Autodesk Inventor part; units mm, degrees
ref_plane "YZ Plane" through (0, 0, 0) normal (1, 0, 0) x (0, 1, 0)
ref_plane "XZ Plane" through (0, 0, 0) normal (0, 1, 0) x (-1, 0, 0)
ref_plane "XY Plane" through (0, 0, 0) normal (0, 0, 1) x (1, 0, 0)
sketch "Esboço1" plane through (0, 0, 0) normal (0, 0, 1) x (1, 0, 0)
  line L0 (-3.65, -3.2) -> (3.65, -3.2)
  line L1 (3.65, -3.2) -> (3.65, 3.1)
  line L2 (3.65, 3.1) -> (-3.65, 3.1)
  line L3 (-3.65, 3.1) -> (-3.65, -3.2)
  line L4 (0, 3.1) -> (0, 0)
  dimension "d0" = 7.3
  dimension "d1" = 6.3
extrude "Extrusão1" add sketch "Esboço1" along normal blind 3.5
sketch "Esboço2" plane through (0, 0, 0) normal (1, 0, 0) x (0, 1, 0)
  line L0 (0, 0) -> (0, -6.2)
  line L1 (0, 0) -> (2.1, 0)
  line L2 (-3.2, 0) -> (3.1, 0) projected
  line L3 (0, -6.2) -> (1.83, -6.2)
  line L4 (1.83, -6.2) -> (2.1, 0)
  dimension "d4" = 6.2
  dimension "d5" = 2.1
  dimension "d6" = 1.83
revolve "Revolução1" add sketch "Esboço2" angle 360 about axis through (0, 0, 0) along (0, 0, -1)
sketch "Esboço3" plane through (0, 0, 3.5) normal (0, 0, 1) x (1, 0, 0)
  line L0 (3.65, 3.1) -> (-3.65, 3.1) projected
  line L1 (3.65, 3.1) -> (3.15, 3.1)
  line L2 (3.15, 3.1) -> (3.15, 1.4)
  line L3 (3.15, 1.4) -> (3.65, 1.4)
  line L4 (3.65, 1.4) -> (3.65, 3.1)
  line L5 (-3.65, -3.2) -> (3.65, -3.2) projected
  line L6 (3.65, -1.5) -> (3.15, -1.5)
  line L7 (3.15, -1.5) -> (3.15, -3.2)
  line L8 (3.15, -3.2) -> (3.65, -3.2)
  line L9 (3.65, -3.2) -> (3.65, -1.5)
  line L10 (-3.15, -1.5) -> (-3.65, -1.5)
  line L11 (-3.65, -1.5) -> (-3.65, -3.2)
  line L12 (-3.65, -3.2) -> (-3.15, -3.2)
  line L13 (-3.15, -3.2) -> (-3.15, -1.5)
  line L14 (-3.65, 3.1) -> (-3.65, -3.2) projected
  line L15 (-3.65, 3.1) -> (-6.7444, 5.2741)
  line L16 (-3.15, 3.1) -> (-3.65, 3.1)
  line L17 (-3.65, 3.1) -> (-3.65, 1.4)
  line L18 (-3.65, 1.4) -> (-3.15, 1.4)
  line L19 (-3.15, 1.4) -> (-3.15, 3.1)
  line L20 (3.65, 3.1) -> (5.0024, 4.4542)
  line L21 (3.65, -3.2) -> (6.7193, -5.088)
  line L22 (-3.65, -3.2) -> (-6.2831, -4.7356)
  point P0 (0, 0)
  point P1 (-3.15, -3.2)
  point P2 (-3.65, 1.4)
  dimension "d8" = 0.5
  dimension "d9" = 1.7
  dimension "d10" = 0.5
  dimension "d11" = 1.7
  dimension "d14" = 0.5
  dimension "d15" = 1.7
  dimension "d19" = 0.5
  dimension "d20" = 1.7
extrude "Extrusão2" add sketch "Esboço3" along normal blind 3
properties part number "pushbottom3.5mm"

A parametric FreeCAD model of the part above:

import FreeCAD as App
import Part
import Sketcher
from FreeCAD import Vector


def add_polygon(sketch, points):
    """Adds a closed chain of lines whose ends are joined by coincident constraints."""
    first, n = sketch.GeometryCount, len(points)
    for a, b in zip(points, points[1:] + points[:1]):
        sketch.addGeometry(Part.LineSegment(App.Vector(*a, 0), App.Vector(*b, 0)), False)
    for i in range(n):
        sketch.addConstraint(Sketcher.Constraint("Coincident", first + i, 2, first + (i + 1) % n, 1))

doc = App.newDocument("Part")
body = doc.addObject("PartDesign::Body", "Body")

# Sketch on XY plane
sketch1 = doc.addObject("Sketcher::SketchObject", "Sketch")
body.addObject(sketch1)
sketch1.AttachmentSupport = (doc.XY_Plane, [""])
sketch1.MapMode = "FlatFace"
add_polygon(sketch1, [(-4, 3), (-4, -3), (4, -3), (4, 3)])  # lines 0-3
sketch1.addConstraint([
    Sketcher.Constraint("Vertical", 0),
    Sketcher.Constraint("Horizontal", 1),
    Sketcher.Constraint("Vertical", 2),
    Sketcher.Constraint("Horizontal", 3),
    Sketcher.Constraint("DistanceX", 1, 1, 1, 2, 7.3),
    Sketcher.Constraint("DistanceY", 0, 2, 0, 1, 6.3),
    Sketcher.Constraint("DistanceY", 0, 2, -1, 1, 3.2),
    Sketcher.Constraint("DistanceX", 0, 2, -1, 1, 3.65),
])
pad1 = doc.addObject("PartDesign::Pad", "Pad")
body.addObject(pad1)
pad1.Profile = sketch1
pad1.Length = 3.5

# Sketch on YZ plane
sketch2 = doc.addObject("Sketcher::SketchObject", "Sketch001")
body.addObject(sketch2)
sketch2.AttachmentSupport = (doc.YZ_Plane, [""])
sketch2.MapMode = "FlatFace"
add_polygon(sketch2, [(2.1, 0), (0, 0), (0, -6.2), (1.8, -6.2)])  # lines 0-3
sketch2.addConstraint([
    Sketcher.Constraint("Horizontal", 0),
    Sketcher.Constraint("Vertical", 1),
    Sketcher.Constraint("Horizontal", 2),
    Sketcher.Constraint("Coincident", 0, 2, -1, 1),
    Sketcher.Constraint("DistanceX", 0, 2, 0, 1, 2.1),
    Sketcher.Constraint("DistanceY", 1, 2, 1, 1, 6.2),
    Sketcher.Constraint("DistanceX", 2, 1, 2, 2, 1.83),
])
revolution = doc.addObject("PartDesign::Revolution", "Revolution")
body.addObject(revolution)
revolution.Profile = sketch2
revolution.ReferenceAxis = (sketch2, ["V_Axis"])
revolution.Angle = 360

# Sketch on XY plane
sketch3 = doc.addObject("Sketcher::SketchObject", "Sketch002")
body.addObject(sketch3)
sketch3.AttachmentSupport = (doc.XY_Plane, [""])
sketch3.MapMode = "FlatFace"
sketch3.AttachmentOffset = App.Placement(Vector(0, 0, 3.5), App.Rotation())
add_polygon(sketch3, [(3.6, 1.4), (3.6, 3.1), (3.1, 3.1), (3.1, 1.4)])  # lines 0-3
add_polygon(sketch3, [(3.1, -1.5), (3.1, -3.2), (3.6, -3.2), (3.6, -1.5)])  # lines 4-7
add_polygon(sketch3, [(-3.1, -1.5), (-3.6, -1.5), (-3.6, -3.2), (-3.1, -3.2)])  # lines 8-11
add_polygon(sketch3, [(-3.1, 1.4), (-3.1, 3.1), (-3.6, 3.1), (-3.6, 1.4)])  # lines 12-15
sketch3.addConstraint([
    Sketcher.Constraint("Vertical", 0),
    Sketcher.Constraint("Horizontal", 1),
    Sketcher.Constraint("Vertical", 2),
    Sketcher.Constraint("Horizontal", 3),
    Sketcher.Constraint("Vertical", 4),
    Sketcher.Constraint("Horizontal", 5),
    Sketcher.Constraint("Vertical", 6),
    Sketcher.Constraint("Horizontal", 7),
    Sketcher.Constraint("Horizontal", 8),
    Sketcher.Constraint("Vertical", 9),
    Sketcher.Constraint("Horizontal", 10),
    Sketcher.Constraint("Vertical", 11),
    Sketcher.Constraint("Vertical", 12),
    Sketcher.Constraint("Horizontal", 13),
    Sketcher.Constraint("Vertical", 14),
    Sketcher.Constraint("Horizontal", 15),
    Sketcher.Constraint("Symmetric", 6, 2, 8, 2, -2),
    Sketcher.Constraint("Symmetric", 4, 2, 10, 2, -2),
    Sketcher.Constraint("Symmetric", 1, 2, 12, 2, -2),
    Sketcher.Constraint("Symmetric", 3, 2, 14, 2, -2),
    Sketcher.Constraint("Vertical", 2, 2, 4, 2),
    Sketcher.Constraint("Vertical", 3, 2, 5, 2),
    Sketcher.Constraint("Equal", 2, 4),
    Sketcher.Constraint("DistanceX", 1, 2, 1, 1, 0.5),
    Sketcher.Constraint("DistanceY", 0, 1, 0, 2, 1.7),
    Sketcher.Constraint("DistanceY", -1, 1, 0, 2, 3.1),
    Sketcher.Constraint("DistanceY", 4, 2, -1, 1, 3.2),
    Sketcher.Constraint("DistanceX", 8, 2, 7, 2, 6.8),
])
pad2 = doc.addObject("PartDesign::Pad", "Pad001")
body.addObject(pad2)
pad2.Profile = sketch3
pad2.Length = 3

doc.recompute()
